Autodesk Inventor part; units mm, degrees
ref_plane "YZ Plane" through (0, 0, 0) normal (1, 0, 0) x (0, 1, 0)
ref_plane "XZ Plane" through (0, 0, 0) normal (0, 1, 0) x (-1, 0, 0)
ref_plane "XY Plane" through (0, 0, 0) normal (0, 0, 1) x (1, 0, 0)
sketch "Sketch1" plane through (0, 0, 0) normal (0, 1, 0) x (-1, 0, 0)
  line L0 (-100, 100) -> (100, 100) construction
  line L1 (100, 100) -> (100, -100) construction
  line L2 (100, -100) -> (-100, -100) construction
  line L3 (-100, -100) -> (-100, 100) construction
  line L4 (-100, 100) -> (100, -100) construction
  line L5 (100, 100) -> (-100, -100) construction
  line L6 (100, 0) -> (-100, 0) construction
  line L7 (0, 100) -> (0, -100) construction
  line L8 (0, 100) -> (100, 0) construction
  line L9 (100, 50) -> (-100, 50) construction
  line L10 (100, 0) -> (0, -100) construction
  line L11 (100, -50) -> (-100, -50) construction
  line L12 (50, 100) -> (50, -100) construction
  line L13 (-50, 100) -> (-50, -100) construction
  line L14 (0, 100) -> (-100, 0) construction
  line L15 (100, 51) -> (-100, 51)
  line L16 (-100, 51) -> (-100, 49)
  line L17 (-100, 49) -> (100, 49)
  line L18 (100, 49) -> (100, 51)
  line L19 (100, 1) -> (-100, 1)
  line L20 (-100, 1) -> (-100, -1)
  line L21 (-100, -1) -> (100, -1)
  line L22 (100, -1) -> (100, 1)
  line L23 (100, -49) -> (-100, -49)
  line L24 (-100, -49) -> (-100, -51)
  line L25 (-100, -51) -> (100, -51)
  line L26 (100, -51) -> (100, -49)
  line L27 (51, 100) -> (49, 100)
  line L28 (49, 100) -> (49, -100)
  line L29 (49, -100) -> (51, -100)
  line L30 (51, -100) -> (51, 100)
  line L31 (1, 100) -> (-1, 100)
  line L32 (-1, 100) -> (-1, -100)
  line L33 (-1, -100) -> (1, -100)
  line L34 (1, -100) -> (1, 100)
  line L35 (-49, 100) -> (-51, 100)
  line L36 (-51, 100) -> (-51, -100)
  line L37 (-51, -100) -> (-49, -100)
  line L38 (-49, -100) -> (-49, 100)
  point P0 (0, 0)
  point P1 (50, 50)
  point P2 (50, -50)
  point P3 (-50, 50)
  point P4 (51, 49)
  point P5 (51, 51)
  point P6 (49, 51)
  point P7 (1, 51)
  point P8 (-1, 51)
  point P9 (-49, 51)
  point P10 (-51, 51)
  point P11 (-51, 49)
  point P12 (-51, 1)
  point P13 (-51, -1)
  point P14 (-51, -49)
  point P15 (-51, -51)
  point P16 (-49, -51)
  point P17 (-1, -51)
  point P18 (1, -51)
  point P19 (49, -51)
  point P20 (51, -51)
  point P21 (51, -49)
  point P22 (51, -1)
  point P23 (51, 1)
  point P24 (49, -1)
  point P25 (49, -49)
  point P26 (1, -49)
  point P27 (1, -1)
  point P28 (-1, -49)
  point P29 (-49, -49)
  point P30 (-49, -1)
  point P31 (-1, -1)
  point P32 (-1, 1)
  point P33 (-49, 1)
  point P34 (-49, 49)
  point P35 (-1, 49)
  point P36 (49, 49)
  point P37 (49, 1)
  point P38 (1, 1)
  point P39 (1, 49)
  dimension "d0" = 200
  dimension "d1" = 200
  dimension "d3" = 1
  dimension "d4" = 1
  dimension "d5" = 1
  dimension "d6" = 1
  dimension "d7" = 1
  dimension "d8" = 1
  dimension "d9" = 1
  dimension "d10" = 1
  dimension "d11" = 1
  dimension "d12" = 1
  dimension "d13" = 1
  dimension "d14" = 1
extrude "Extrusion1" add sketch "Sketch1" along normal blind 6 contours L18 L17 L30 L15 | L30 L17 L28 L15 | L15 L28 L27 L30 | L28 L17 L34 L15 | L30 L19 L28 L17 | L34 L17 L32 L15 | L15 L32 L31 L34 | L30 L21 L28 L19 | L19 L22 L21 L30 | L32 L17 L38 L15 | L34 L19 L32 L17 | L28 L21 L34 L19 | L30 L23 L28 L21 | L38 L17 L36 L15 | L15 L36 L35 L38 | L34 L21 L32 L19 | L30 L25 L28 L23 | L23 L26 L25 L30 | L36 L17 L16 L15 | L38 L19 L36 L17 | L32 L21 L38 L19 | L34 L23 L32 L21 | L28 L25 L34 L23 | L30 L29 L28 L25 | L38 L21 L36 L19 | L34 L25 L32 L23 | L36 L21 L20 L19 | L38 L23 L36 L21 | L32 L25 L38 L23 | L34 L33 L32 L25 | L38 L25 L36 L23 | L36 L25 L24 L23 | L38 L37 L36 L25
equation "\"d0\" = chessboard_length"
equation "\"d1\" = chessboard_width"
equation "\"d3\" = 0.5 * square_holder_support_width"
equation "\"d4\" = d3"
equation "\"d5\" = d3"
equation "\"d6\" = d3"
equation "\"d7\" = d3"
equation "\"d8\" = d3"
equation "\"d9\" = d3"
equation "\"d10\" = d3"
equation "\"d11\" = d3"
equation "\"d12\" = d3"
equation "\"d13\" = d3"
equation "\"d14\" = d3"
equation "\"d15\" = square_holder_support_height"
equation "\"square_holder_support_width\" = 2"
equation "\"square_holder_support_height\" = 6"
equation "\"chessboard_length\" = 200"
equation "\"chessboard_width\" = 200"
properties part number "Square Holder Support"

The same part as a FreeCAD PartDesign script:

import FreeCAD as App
import Part
import Sketcher
from FreeCAD import Vector

doc = App.newDocument("Part")
params = doc.addObject("Spreadsheet::Sheet", "Params")
for row, (alias, value) in enumerate([
    ("sketch1_width", "49 mm"),
    ("sketch1_width2", "48 mm"),
    ("pad1_length", "6 mm"),
], start=1):
    params.set(f"A{row}", alias)
    params.set(f"B{row}", "=" + value)
    params.setAlias(f"B{row}", alias)

body = doc.addObject("PartDesign::Body", "Body")

# Sketch on XZ plane
sketch1 = body.newObject("Sketcher::SketchObject", "Sketch")
sketch1.AttachmentSupport = (doc.getObject("XZ_Plane"), [""])
sketch1.MapMode = "FlatFace"
sketch1.addGeometry(Part.LineSegment(Vector(-100, 49, 0), Vector(-100, 51, 0)), False)
sketch1.addGeometry(Part.LineSegment(Vector(-100, 51, 0), Vector(-51, 51, 0)), False)
sketch1.addGeometry(Part.LineSegment(Vector(-51, 51, 0), Vector(-51, 100, 0)), False)
sketch1.addGeometry(Part.LineSegment(Vector(-51, 100, 0), Vector(-49, 100, 0)), False)
sketch1.addGeometry(Part.LineSegment(Vector(-49, 100, 0), Vector(-49, 51, 0)), False)
sketch1.addGeometry(Part.LineSegment(Vector(-49, 51, 0), Vector(-1, 51, 0)), False)
sketch1.addGeometry(Part.LineSegment(Vector(-1, 51, 0), Vector(-1, 100, 0)), False)
sketch1.addGeometry(Part.LineSegment(Vector(-1, 100, 0), Vector(1, 100, 0)), False)
sketch1.addGeometry(Part.LineSegment(Vector(1, 100, 0), Vector(1, 51, 0)), False)
sketch1.addGeometry(Part.LineSegment(Vector(1, 51, 0), Vector(49, 51, 0)), False)
sketch1.addGeometry(Part.LineSegment(Vector(49, 51, 0), Vector(49, 100, 0)), False)
sketch1.addGeometry(Part.LineSegment(Vector(49, 100, 0), Vector(51, 100, 0)), False)
sketch1.addGeometry(Part.LineSegment(Vector(51, 100, 0), Vector(51, 51, 0)), False)
sketch1.addGeometry(Part.LineSegment(Vector(51, 51, 0), Vector(100, 51, 0)), False)
sketch1.addGeometry(Part.LineSegment(Vector(100, 51, 0), Vector(100, 49, 0)), False)
sketch1.addGeometry(Part.LineSegment(Vector(100, 49, 0), Vector(51, 49, 0)), False)
sketch1.addGeometry(Part.LineSegment(Vector(51, 49, 0), Vector(51, 1, 0)), False)
sketch1.addGeometry(Part.LineSegment(Vector(51, 1, 0), Vector(100, 1, 0)), False)
sketch1.addGeometry(Part.LineSegment(Vector(100, 1, 0), Vector(100, -1, 0)), False)
sketch1.addGeometry(Part.LineSegment(Vector(100, -1, 0), Vector(51, -1, 0)), False)
sketch1.addGeometry(Part.LineSegment(Vector(51, -1, 0), Vector(51, -49, 0)), False)
sketch1.addGeometry(Part.LineSegment(Vector(51, -49, 0), Vector(100, -49, 0)), False)
sketch1.addGeometry(Part.LineSegment(Vector(100, -49, 0), Vector(100, -51, 0)), False)
sketch1.addGeometry(Part.LineSegment(Vector(100, -51, 0), Vector(51, -51, 0)), False)
sketch1.addGeometry(Part.LineSegment(Vector(51, -51, 0), Vector(51, -100, 0)), False)
sketch1.addGeometry(Part.LineSegment(Vector(51, -100, 0), Vector(49, -100, 0)), False)
sketch1.addGeometry(Part.LineSegment(Vector(49, -100, 0), Vector(49, -51, 0)), False)
sketch1.addGeometry(Part.LineSegment(Vector(49, -51, 0), Vector(1, -51, 0)), False)
sketch1.addGeometry(Part.LineSegment(Vector(1, -51, 0), Vector(1, -100, 0)), False)
sketch1.addGeometry(Part.LineSegment(Vector(1, -100, 0), Vector(-1, -100, 0)), False)
sketch1.addGeometry(Part.LineSegment(Vector(-1, -100, 0), Vector(-1, -51, 0)), False)
sketch1.addGeometry(Part.LineSegment(Vector(-1, -51, 0), Vector(-49, -51, 0)), False)
sketch1.addGeometry(Part.LineSegment(Vector(-49, -51, 0), Vector(-49, -100, 0)), False)
sketch1.addGeometry(Part.LineSegment(Vector(-49, -100, 0), Vector(-51, -100, 0)), False)
sketch1.addGeometry(Part.LineSegment(Vector(-51, -100, 0), Vector(-51, -51, 0)), False)
sketch1.addGeometry(Part.LineSegment(Vector(-51, -51, 0), Vector(-100, -51, 0)), False)
sketch1.addGeometry(Part.LineSegment(Vector(-100, -51, 0), Vector(-100, -49, 0)), False)
sketch1.addGeometry(Part.LineSegment(Vector(-100, -49, 0), Vector(-51, -49, 0)), False)
sketch1.addGeometry(Part.LineSegment(Vector(-51, -49, 0), Vector(-51, -1, 0)), False)
sketch1.addGeometry(Part.LineSegment(Vector(-51, -1, 0), Vector(-100, -1, 0)), False)
sketch1.addGeometry(Part.LineSegment(Vector(-100, -1, 0), Vector(-100, 1, 0)), False)
sketch1.addGeometry(Part.LineSegment(Vector(-100, 1, 0), Vector(-51, 1, 0)), False)
sketch1.addGeometry(Part.LineSegment(Vector(-51, 1, 0), Vector(-51, 49, 0)), False)
sketch1.addGeometry(Part.LineSegment(Vector(-51, 49, 0), Vector(-100, 49, 0)), False)
sketch1.addGeometry(Part.LineSegment(Vector(-49, 49, 0), Vector(-49, 1, 0)), False)
sketch1.addGeometry(Part.LineSegment(Vector(-49, 1, 0), Vector(-1, 1, 0)), False)
sketch1.addGeometry(Part.LineSegment(Vector(-1, 1, 0), Vector(-1, 49, 0)), False)
sketch1.addGeometry(Part.LineSegment(Vector(-1, 49, 0), Vector(-49, 49, 0)), False)
sketch1.addGeometry(Part.LineSegment(Vector(-49, -1, 0), Vector(-49, -49, 0)), False)
sketch1.addGeometry(Part.LineSegment(Vector(-49, -49, 0), Vector(-1, -49, 0)), False)
sketch1.addGeometry(Part.LineSegment(Vector(-1, -49, 0), Vector(-1, -1, 0)), False)
sketch1.addGeometry(Part.LineSegment(Vector(-1, -1, 0), Vector(-49, -1, 0)), False)
sketch1.addGeometry(Part.LineSegment(Vector(1, 49, 0), Vector(1, 1, 0)), False)
sketch1.addGeometry(Part.LineSegment(Vector(1, 1, 0), Vector(49, 1, 0)), False)
sketch1.addGeometry(Part.LineSegment(Vector(49, 1, 0), Vector(49, 49, 0)), False)
sketch1.addGeometry(Part.LineSegment(Vector(49, 49, 0), Vector(1, 49, 0)), False)
sketch1.addGeometry(Part.LineSegment(Vector(49, -1, 0), Vector(1, -1, 0)), False)
sketch1.addGeometry(Part.LineSegment(Vector(1, -1, 0), Vector(1, -49, 0)), False)
sketch1.addGeometry(Part.LineSegment(Vector(1, -49, 0), Vector(49, -49, 0)), False)
sketch1.addGeometry(Part.LineSegment(Vector(49, -49, 0), Vector(49, -1, 0)), False)
sketch1.addConstraint(Sketcher.Constraint("Coincident", 0, 2, 1, 1))
sketch1.addConstraint(Sketcher.Constraint("Coincident", 1, 2, 2, 1))
sketch1.addConstraint(Sketcher.Constraint("Coincident", 2, 2, 3, 1))
sketch1.addConstraint(Sketcher.Constraint("Coincident", 3, 2, 4, 1))
sketch1.addConstraint(Sketcher.Constraint("Coincident", 4, 2, 5, 1))
sketch1.addConstraint(Sketcher.Constraint("Coincident", 5, 2, 6, 1))
sketch1.addConstraint(Sketcher.Constraint("Coincident", 6, 2, 7, 1))
sketch1.addConstraint(Sketcher.Constraint("Coincident", 7, 2, 8, 1))
sketch1.addConstraint(Sketcher.Constraint("Coincident", 8, 2, 9, 1))
sketch1.addConstraint(Sketcher.Constraint("Coincident", 9, 2, 10, 1))
sketch1.addConstraint(Sketcher.Constraint("Coincident", 10, 2, 11, 1))
sketch1.addConstraint(Sketcher.Constraint("Coincident", 11, 2, 12, 1))
sketch1.addConstraint(Sketcher.Constraint("Coincident", 12, 2, 13, 1))
sketch1.addConstraint(Sketcher.Constraint("Coincident", 13, 2, 14, 1))
sketch1.addConstraint(Sketcher.Constraint("Coincident", 14, 2, 15, 1))
sketch1.addConstraint(Sketcher.Constraint("Coincident", 15, 2, 16, 1))
sketch1.addConstraint(Sketcher.Constraint("Coincident", 16, 2, 17, 1))
sketch1.addConstraint(Sketcher.Constraint("Coincident", 17, 2, 18, 1))
sketch1.addConstraint(Sketcher.Constraint("Coincident", 18, 2, 19, 1))
sketch1.addConstraint(Sketcher.Constraint("Coincident", 19, 2, 20, 1))
sketch1.addConstraint(Sketcher.Constraint("Coincident", 20, 2, 21, 1))
sketch1.addConstraint(Sketcher.Constraint("Coincident", 21, 2, 22, 1))
sketch1.addConstraint(Sketcher.Constraint("Coincident", 22, 2, 23, 1))
sketch1.addConstraint(Sketcher.Constraint("Coincident", 23, 2, 24, 1))
sketch1.addConstraint(Sketcher.Constraint("Coincident", 24, 2, 25, 1))
sketch1.addConstraint(Sketcher.Constraint("Coincident", 25, 2, 26, 1))
sketch1.addConstraint(Sketcher.Constraint("Coincident", 26, 2, 27, 1))
sketch1.addConstraint(Sketcher.Constraint("Coincident", 27, 2, 28, 1))
sketch1.addConstraint(Sketcher.Constraint("Coincident", 28, 2, 29, 1))
sketch1.addConstraint(Sketcher.Constraint("Coincident", 29, 2, 30, 1))
sketch1.addConstraint(Sketcher.Constraint("Coincident", 30, 2, 31, 1))
sketch1.addConstraint(Sketcher.Constraint("Coincident", 31, 2, 32, 1))
sketch1.addConstraint(Sketcher.Constraint("Coincident", 32, 2, 33, 1))
sketch1.addConstraint(Sketcher.Constraint("Coincident", 33, 2, 34, 1))
sketch1.addConstraint(Sketcher.Constraint("Coincident", 34, 2, 35, 1))
sketch1.addConstraint(Sketcher.Constraint("Coincident", 35, 2, 36, 1))
sketch1.addConstraint(Sketcher.Constraint("Coincident", 36, 2, 37, 1))
sketch1.addConstraint(Sketcher.Constraint("Coincident", 37, 2, 38, 1))
sketch1.addConstraint(Sketcher.Constraint("Coincident", 38, 2, 39, 1))
sketch1.addConstraint(Sketcher.Constraint("Coincident", 39, 2, 40, 1))
sketch1.addConstraint(Sketcher.Constraint("Coincident", 40, 2, 41, 1))
sketch1.addConstraint(Sketcher.Constraint("Coincident", 41, 2, 42, 1))
sketch1.addConstraint(Sketcher.Constraint("Coincident", 42, 2, 43, 1))
sketch1.addConstraint(Sketcher.Constraint("Coincident", 43, 2, 0, 1))
sketch1.addConstraint(Sketcher.Constraint("Coincident", 44, 2, 45, 1))
sketch1.addConstraint(Sketcher.Constraint("Coincident", 45, 2, 46, 1))
sketch1.addConstraint(Sketcher.Constraint("Coincident", 46, 2, 47, 1))
sketch1.addConstraint(Sketcher.Constraint("Coincident", 47, 2, 44, 1))
sketch1.addConstraint(Sketcher.Constraint("Coincident", 48, 2, 49, 1))
sketch1.addConstraint(Sketcher.Constraint("Coincident", 49, 2, 50, 1))
sketch1.addConstraint(Sketcher.Constraint("Coincident", 50, 2, 51, 1))
sketch1.addConstraint(Sketcher.Constraint("Coincident", 51, 2, 48, 1))
sketch1.addConstraint(Sketcher.Constraint("Coincident", 52, 2, 53, 1))
sketch1.addConstraint(Sketcher.Constraint("Coincident", 53, 2, 54, 1))
sketch1.addConstraint(Sketcher.Constraint("Coincident", 54, 2, 55, 1))
sketch1.addConstraint(Sketcher.Constraint("Coincident", 55, 2, 52, 1))
sketch1.addConstraint(Sketcher.Constraint("Coincident", 56, 2, 57, 1))
sketch1.addConstraint(Sketcher.Constraint("Coincident", 57, 2, 58, 1))
sketch1.addConstraint(Sketcher.Constraint("Coincident", 58, 2, 59, 1))
sketch1.addConstraint(Sketcher.Constraint("Coincident", 59, 2, 56, 1))
sketch1.addConstraint(Sketcher.Constraint("Vertical", 0))
sketch1.addConstraint(Sketcher.Constraint("Horizontal", 1))
sketch1.addConstraint(Sketcher.Constraint("Vertical", 2))
sketch1.addConstraint(Sketcher.Constraint("Horizontal", 3))
sketch1.addConstraint(Sketcher.Constraint("Vertical", 4))
sketch1.addConstraint(Sketcher.Constraint("Horizontal", 5))
sketch1.addConstraint(Sketcher.Constraint("Vertical", 6))
sketch1.addConstraint(Sketcher.Constraint("Horizontal", 7))
sketch1.addConstraint(Sketcher.Constraint("Vertical", 8))
sketch1.addConstraint(Sketcher.Constraint("Horizontal", 9))
sketch1.addConstraint(Sketcher.Constraint("Vertical", 10))
sketch1.addConstraint(Sketcher.Constraint("Horizontal", 11))
sketch1.addConstraint(Sketcher.Constraint("Vertical", 12))
sketch1.addConstraint(Sketcher.Constraint("Horizontal", 13))
sketch1.addConstraint(Sketcher.Constraint("Vertical", 14))
sketch1.addConstraint(Sketcher.Constraint("Horizontal", 15))
sketch1.addConstraint(Sketcher.Constraint("Vertical", 16))
sketch1.addConstraint(Sketcher.Constraint("Horizontal", 17))
sketch1.addConstraint(Sketcher.Constraint("Vertical", 18))
sketch1.addConstraint(Sketcher.Constraint("Horizontal", 19))
sketch1.addConstraint(Sketcher.Constraint("Vertical", 20))
sketch1.addConstraint(Sketcher.Constraint("Horizontal", 21))
sketch1.addConstraint(Sketcher.Constraint("Vertical", 22))
sketch1.addConstraint(Sketcher.Constraint("Horizontal", 23))
sketch1.addConstraint(Sketcher.Constraint("Vertical", 24))
sketch1.addConstraint(Sketcher.Constraint("Horizontal", 25))
sketch1.addConstraint(Sketcher.Constraint("Vertical", 26))
sketch1.addConstraint(Sketcher.Constraint("Horizontal", 27))
sketch1.addConstraint(Sketcher.Constraint("Vertical", 28))
sketch1.addConstraint(Sketcher.Constraint("Horizontal", 29))
sketch1.addConstraint(Sketcher.Constraint("Vertical", 30))
sketch1.addConstraint(Sketcher.Constraint("Horizontal", 31))
sketch1.addConstraint(Sketcher.Constraint("Vertical", 32))
sketch1.addConstraint(Sketcher.Constraint("Horizontal", 33))
sketch1.addConstraint(Sketcher.Constraint("Vertical", 34))
sketch1.addConstraint(Sketcher.Constraint("Horizontal", 35))
sketch1.addConstraint(Sketcher.Constraint("Vertical", 36))
sketch1.addConstraint(Sketcher.Constraint("Horizontal", 37))
sketch1.addConstraint(Sketcher.Constraint("Vertical", 38))
sketch1.addConstraint(Sketcher.Constraint("Horizontal", 39))
sketch1.addConstraint(Sketcher.Constraint("Vertical", 40))
sketch1.addConstraint(Sketcher.Constraint("Horizontal", 41))
sketch1.addConstraint(Sketcher.Constraint("Vertical", 42))
sketch1.addConstraint(Sketcher.Constraint("Horizontal", 43))
sketch1.addConstraint(Sketcher.Constraint("Vertical", 44))
sketch1.addConstraint(Sketcher.Constraint("Horizontal", 45))
sketch1.addConstraint(Sketcher.Constraint("Vertical", 46))
sketch1.addConstraint(Sketcher.Constraint("Horizontal", 47))
sketch1.addConstraint(Sketcher.Constraint("Vertical", 48))
sketch1.addConstraint(Sketcher.Constraint("Horizontal", 49))
sketch1.addConstraint(Sketcher.Constraint("Vertical", 50))
sketch1.addConstraint(Sketcher.Constraint("Horizontal", 51))
sketch1.addConstraint(Sketcher.Constraint("Vertical", 52))
sketch1.addConstraint(Sketcher.Constraint("Horizontal", 53))
sketch1.addConstraint(Sketcher.Constraint("Vertical", 54))
sketch1.addConstraint(Sketcher.Constraint("Horizontal", 55))
sketch1.addConstraint(Sketcher.Constraint("Horizontal", 56))
sketch1.addConstraint(Sketcher.Constraint("Vertical", 57))
sketch1.addConstraint(Sketcher.Constraint("Horizontal", 58))
sketch1.addConstraint(Sketcher.Constraint("Vertical", 59))
sketch1.addConstraint(Sketcher.Constraint("Symmetric", 0, 2, 22, 2, -1, 1))
sketch1.addConstraint(Sketcher.Constraint("Symmetric", 2, 2, 24, 2, -1, 1))
sketch1.addConstraint(Sketcher.Constraint("Symmetric", 4, 2, 26, 2, -1, 1))
sketch1.addConstraint(Sketcher.Constraint("Symmetric", 6, 2, 28, 2, -1, 1))
sketch1.addConstraint(Sketcher.Constraint("Symmetric", 8, 2, 30, 2, -1, 1))
sketch1.addConstraint(Sketcher.Constraint("Symmetric", 10, 2, 32, 2, -1, 1))
sketch1.addConstraint(Sketcher.Constraint("Symmetric", 12, 2, 34, 2, -1, 1))
sketch1.addConstraint(Sketcher.Constraint("Symmetric", 14, 2, 36, 2, -1, 1))
sketch1.addConstraint(Sketcher.Constraint("Symmetric", 16, 2, 38, 2, -1, 1))
sketch1.addConstraint(Sketcher.Constraint("Symmetric", 18, 2, 40, 2, -1, 1))
sketch1.addConstraint(Sketcher.Constraint("Symmetric", 20, 2, 42, 2, -1, 1))
sketch1.addConstraint(Sketcher.Constraint("Symmetric", 50, 2, 52, 2, -1, 1))
sketch1.addConstraint(Sketcher.Constraint("Symmetric", 48, 2, 54, 2, -1, 1))
sketch1.addConstraint(Sketcher.Constraint("Symmetric", 45, 2, 56, 2, -1, 1))
sketch1.addConstraint(Sketcher.Constraint("Symmetric", 47, 2, 58, 2, -1, 1))
sketch1.addConstraint(Sketcher.Constraint("Symmetric", 5, 2, 8, 2, -2))
sketch1.addConstraint(Sketcher.Constraint("Symmetric", 3, 2, 10, 2, -2))
sketch1.addConstraint(Sketcher.Constraint("Symmetric", 1, 2, 12, 2, -2))
sketch1.addConstraint(Sketcher.Constraint("Symmetric", 21, 2, 36, 2, -2))
sketch1.addConstraint(Sketcher.Constraint("Symmetric", 19, 2, 38, 2, -2))
sketch1.addConstraint(Sketcher.Constraint("Symmetric", 45, 2, 52, 2, -2))
sketch1.addConstraint(Sketcher.Constraint("Symmetric", 47, 2, 54, 2, -2))
sketch1.addConstraint(Sketcher.Constraint("Horizontal", 1, 2, 4, 2))
sketch1.addConstraint(Sketcher.Constraint("Horizontal", 3, 2, 6, 2))
sketch1.addConstraint(Sketcher.Constraint("Horizontal", 41, 2, 44, 2))
sketch1.addConstraint(Sketcher.Constraint("Horizontal", 43, 2, 46, 2))
sketch1.addConstraint(Sketcher.Constraint("Vertical", 12, 2, 15, 2))
sketch1.addConstraint(Sketcher.Constraint("Vertical", 14, 2, 17, 2))
sketch1.addConstraint(Sketcher.Constraint("Vertical", 32, 2, 44, 2))
sketch1.addConstraint(Sketcher.Constraint("Vertical", 30, 2, 45, 2))
sketch1.addConstraint(Sketcher.Constraint("Equal", 3, 7))
sketch1.addConstraint(Sketcher.Constraint("Equal", 33, 0))
sketch1.addConstraint(Sketcher.Constraint("Equal", 43, 2))
sketch1.addConstraint(Sketcher.Constraint("Equal", 58, 16))
sketch1.addConstraint(Sketcher.Constraint("Equal", 14, 18))
sketch1.addConstraint(Sketcher.Constraint("DistanceX", 5, 2, -1, 1, 1.0))
sketch1.addConstraint(Sketcher.Constraint("DistanceX", 1, 1, 1, 2, 49.0))
sketch1.addConstraint(Sketcher.Constraint("DistanceX", 5, 1, 5, 2, 48.0))
sketch1.setExpression("Constraints[156]", "Params.sketch1_width")
sketch1.setExpression("Constraints[157]", "Params.sketch1_width2")
pad1 = body.newObject("PartDesign::Pad", "Pad")
pad1.Profile = sketch1
pad1.setExpression("Length", "Params.pad1_length")
pad1.Reversed = True

doc.recompute()
